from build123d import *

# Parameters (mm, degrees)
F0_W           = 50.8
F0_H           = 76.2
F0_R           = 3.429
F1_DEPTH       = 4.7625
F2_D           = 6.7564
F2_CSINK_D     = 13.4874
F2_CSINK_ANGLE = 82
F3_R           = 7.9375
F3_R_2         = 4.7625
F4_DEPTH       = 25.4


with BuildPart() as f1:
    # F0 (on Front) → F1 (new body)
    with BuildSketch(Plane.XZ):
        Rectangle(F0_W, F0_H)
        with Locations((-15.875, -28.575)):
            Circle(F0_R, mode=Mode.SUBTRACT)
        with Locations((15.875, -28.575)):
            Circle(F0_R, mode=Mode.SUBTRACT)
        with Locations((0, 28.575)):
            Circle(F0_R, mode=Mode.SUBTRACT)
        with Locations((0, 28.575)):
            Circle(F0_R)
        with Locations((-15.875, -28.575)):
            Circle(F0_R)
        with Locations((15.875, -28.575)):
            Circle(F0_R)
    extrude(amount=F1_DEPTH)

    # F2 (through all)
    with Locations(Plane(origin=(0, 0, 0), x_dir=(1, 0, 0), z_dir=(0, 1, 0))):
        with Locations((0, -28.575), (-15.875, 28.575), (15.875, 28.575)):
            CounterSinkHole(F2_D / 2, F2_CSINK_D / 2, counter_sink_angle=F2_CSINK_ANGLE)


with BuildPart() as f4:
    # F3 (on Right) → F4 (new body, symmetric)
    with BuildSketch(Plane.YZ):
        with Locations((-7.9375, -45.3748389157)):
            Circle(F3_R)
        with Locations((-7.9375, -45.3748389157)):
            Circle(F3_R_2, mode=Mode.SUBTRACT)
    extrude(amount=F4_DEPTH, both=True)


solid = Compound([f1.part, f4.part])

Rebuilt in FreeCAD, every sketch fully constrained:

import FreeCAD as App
import Part
import Sketcher
Q = App.Units.Quantity

doc = App.newDocument("Part")
body = doc.addObject("PartDesign::Body", "Body")

# Sketch on XZ plane
sketch1 = doc.addObject("Sketcher::SketchObject", "Sketch")
body.addObject(sketch1)
sketch1.AttachmentSupport = (doc.XZ_Plane, [""])
sketch1.MapMode = "FlatFace"
sketch1.addGeometry([
    Part.LineSegment(App.Vector(-25, 38, 0), App.Vector(-25, -38, 0)),
    Part.LineSegment(App.Vector(-25, -38, 0), App.Vector(25, -38, 0)),
    Part.LineSegment(App.Vector(25, -38, 0), App.Vector(25, 38, 0)),
    Part.LineSegment(App.Vector(25, 38, 0), App.Vector(-25, 38, 0)),
], False)
sketch1.addConstraint([
    Sketcher.Constraint("Coincident", 0, 2, 1, 1),
    Sketcher.Constraint("Coincident", 1, 2, 2, 1),
    Sketcher.Constraint("Coincident", 2, 2, 3, 1),
    Sketcher.Constraint("Coincident", 3, 2, 0, 1),
    Sketcher.Constraint("Vertical", 0),
    Sketcher.Constraint("Horizontal", 1),
    Sketcher.Constraint("Vertical", 2),
    Sketcher.Constraint("Horizontal", 3),
    Sketcher.Constraint("Symmetric", 0, 2, 2, 2, -1, 1),
    Sketcher.Constraint("DistanceX", 1, 1, 1, 2, Q("2 in")),
    Sketcher.Constraint("DistanceY", 0, 2, 0, 1, Q("3 in")),
])
pad1 = doc.addObject("PartDesign::Pad", "Pad")
body.addObject(pad1)
pad1.Profile = sketch1
pad1.Length = Q("0.1875 in")

# Sketch on XZ plane
sketch2 = doc.addObject("Sketcher::SketchObject", "Sketch001")
body.addObject(sketch2)
sketch2.AttachmentSupport = (doc.XZ_Plane, [""])
sketch2.MapMode = "FlatFace"
sketch2.addGeometry([
    Part.Circle(App.Vector(0, 28.6, 0), App.Vector(0, 0, 1), 3.4),
    Part.Circle(App.Vector(-15.9, -28.6, 0), App.Vector(0, 0, 1), 3.4),
    Part.Circle(App.Vector(15.9, -28.6, 0), App.Vector(0, 0, 1), 3.4),
], False)
sketch2.addConstraint([
    Sketcher.Constraint("Equal", 0, 1),
    Sketcher.Constraint("Equal", 1, 2),
    Sketcher.Constraint("Symmetric", 1, 3, 2, 3, -2),
    Sketcher.Constraint("PointOnObject", 0, 3, -2),
    Sketcher.Constraint("Diameter", 0, Q("0.266 in")),
    Sketcher.Constraint("DistanceY", 1, 3, 0, 3, Q("2.25 in")),
    Sketcher.Constraint("DistanceX", 1, 3, 2, 3, Q("1.25 in")),
    Sketcher.Constraint("DistanceY", -1, 1, 0, 3, Q("1.125 in")),
])
doc.recompute()
hole = doc.addObject("PartDesign::Hole", "Hole")
body.addObject(hole)
hole.Profile = sketch2
hole.ThreadType = "None"
hole.Diameter = Q("0.266 in")
hole.DepthType = "ThroughAll"
hole.HoleCutType = "Countersink"
hole.HoleCutDiameter = Q("0.531 in")
hole.HoleCutCountersinkAngle = 82
hole.Reversed = True
body2 = doc.addObject("PartDesign::Body", "Body001")

# Sketch on YZ plane
sketch3 = doc.addObject("Sketcher::SketchObject", "Sketch002")
body2.addObject(sketch3)
sketch3.AttachmentSupport = (doc.getObject("YZ_Plane001"), [""])
sketch3.MapMode = "FlatFace"
sketch3.addGeometry([
    Part.Circle(App.Vector(-7.9, -45.4, 0), App.Vector(0, 0, 1), 7.9),
    Part.Circle(App.Vector(-7.9, -45.4, 0), App.Vector(0, 0, 1), 4.8),
], False)
sketch3.addConstraint([
    Sketcher.Constraint("Coincident", 1, 3, 0, 3),
    Sketcher.Constraint("Diameter", 0, Q("0.625 in")),
    Sketcher.Constraint("Diameter", 1, Q("0.375 in")),
    Sketcher.Constraint("DistanceX", 0, 3, -1, 1, Q("0.3125 in")),
    Sketcher.Constraint("DistanceY", 0, 3, -1, 1, Q("45.374839 mm")),
])
pad2 = doc.addObject("PartDesign::Pad", "Pad001")
body2.addObject(pad2)
pad2.Profile = sketch3
pad2.Length = Q("2 in")
pad2.Midplane = True

doc.recompute()
